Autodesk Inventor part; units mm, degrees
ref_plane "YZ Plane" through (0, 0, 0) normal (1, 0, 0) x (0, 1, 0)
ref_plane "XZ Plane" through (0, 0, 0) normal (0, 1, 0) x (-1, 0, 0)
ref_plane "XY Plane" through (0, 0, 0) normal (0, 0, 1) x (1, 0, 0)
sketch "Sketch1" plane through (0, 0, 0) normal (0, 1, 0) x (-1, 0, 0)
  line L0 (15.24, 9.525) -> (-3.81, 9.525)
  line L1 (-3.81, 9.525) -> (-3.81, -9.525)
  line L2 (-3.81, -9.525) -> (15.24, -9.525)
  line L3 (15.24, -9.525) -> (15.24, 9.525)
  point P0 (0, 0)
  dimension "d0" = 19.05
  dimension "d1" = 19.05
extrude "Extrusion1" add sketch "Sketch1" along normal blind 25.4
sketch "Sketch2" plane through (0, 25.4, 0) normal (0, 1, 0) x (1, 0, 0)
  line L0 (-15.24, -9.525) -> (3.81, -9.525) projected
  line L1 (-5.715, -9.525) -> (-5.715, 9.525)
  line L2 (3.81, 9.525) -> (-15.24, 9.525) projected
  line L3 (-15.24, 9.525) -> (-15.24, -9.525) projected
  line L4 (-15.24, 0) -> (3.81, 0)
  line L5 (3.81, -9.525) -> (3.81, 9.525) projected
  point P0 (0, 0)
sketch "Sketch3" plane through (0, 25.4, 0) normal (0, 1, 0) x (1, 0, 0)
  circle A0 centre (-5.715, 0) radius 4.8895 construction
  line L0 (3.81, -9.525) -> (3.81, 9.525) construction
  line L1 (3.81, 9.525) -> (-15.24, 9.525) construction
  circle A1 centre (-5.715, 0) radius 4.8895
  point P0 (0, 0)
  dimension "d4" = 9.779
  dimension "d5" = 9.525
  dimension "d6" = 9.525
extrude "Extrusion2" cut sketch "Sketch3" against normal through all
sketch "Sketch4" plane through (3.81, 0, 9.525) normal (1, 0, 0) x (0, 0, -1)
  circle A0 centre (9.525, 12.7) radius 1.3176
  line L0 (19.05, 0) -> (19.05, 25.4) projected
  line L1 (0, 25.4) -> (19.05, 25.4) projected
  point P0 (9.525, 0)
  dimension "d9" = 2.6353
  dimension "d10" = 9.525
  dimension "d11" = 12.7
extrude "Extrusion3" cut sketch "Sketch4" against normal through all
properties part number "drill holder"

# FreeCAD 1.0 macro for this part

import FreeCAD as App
import Part
import Sketcher
from FreeCAD import Vector
Q = App.Units.Quantity

doc = App.newDocument("Part")
body = doc.addObject("PartDesign::Body", "Body")

# Sketch on XZ plane
sketch1 = doc.addObject("Sketcher::SketchObject", "Sketch")
body.addObject(sketch1)
sketch1.AttachmentSupport = (doc.XZ_Plane, [""])
sketch1.MapMode = "FlatFace"
sketch1.addGeometry([
    Part.LineSegment(Vector(-15, -10, 0), Vector(-15, 10, 0)),
    Part.LineSegment(Vector(-15, 10, 0), Vector(4, 10, 0)),
    Part.LineSegment(Vector(4, 10, 0), Vector(4, -10, 0)),
    Part.LineSegment(Vector(4, -10, 0), Vector(-15, -10, 0)),
], False)
sketch1.addConstraint([
    Sketcher.Constraint("Coincident", 0, 2, 1, 1),
    Sketcher.Constraint("Coincident", 1, 2, 2, 1),
    Sketcher.Constraint("Coincident", 2, 2, 3, 1),
    Sketcher.Constraint("Coincident", 3, 2, 0, 1),
    Sketcher.Constraint("Vertical", 0),
    Sketcher.Constraint("Horizontal", 1),
    Sketcher.Constraint("Vertical", 2),
    Sketcher.Constraint("Horizontal", 3),
    Sketcher.Constraint("Equal", 3, 0),
    Sketcher.Constraint("DistanceX", 1, 1, 1, 2, Q("0.75 in")),
    Sketcher.Constraint("DistanceX", 0, 2, -1, 1, Q("0.6 in")),
    Sketcher.Constraint("DistanceY", -1, 1, 0, 2, Q("0.375 in")),
])
pad1 = doc.addObject("PartDesign::Pad", "Pad")
body.addObject(pad1)
pad1.Profile = sketch1
pad1.Length = Q("1 in")
pad1.Reversed = True

# Sketch on XZ plane
sketch2 = doc.addObject("Sketcher::SketchObject", "Sketch001")
body.addObject(sketch2)
sketch2.AttachmentSupport = (doc.XZ_Plane, [""])
sketch2.MapMode = "FlatFace"
sketch2.AttachmentOffset = App.Placement(Vector(0, 0, -1 * 25.4), App.Rotation())
sketch2.addGeometry(Part.Circle(Vector(-5.7, 0, 0), Vector(0, 0, 1), 4.9), False)
sketch2.addConstraint([
    Sketcher.Constraint("PointOnObject", 0, 3, -1),
    Sketcher.Constraint("Diameter", 0, Q("0.385 in")),
    Sketcher.Constraint("DistanceX", 0, 3, -1, 1, Q("0.225 in")),
])
pocket1 = doc.addObject("PartDesign::Pocket", "Pocket")
body.addObject(pocket1)
pocket1.Profile = sketch2
pocket1.Type = "ThroughAll"
pocket1.Reversed = True

# Sketch on YZ plane
sketch3 = doc.addObject("Sketcher::SketchObject", "Sketch002")
body.addObject(sketch3)
sketch3.AttachmentSupport = (doc.YZ_Plane, [""])
sketch3.MapMode = "FlatFace"
sketch3.AttachmentOffset = App.Placement(Vector(0, 0, 0.15 * 25.4), App.Rotation())
sketch3.addGeometry(Part.Circle(Vector(12.7, 0, 0), Vector(0, 0, 1), 1.3), False)
sketch3.addConstraint([
    Sketcher.Constraint("PointOnObject", 0, 3, -1),
    Sketcher.Constraint("DistanceX", -1, 1, 0, 3, Q("0.5 in")),
    Sketcher.Constraint("Diameter", 0, 2.6352),
])
pocket2 = doc.addObject("PartDesign::Pocket", "Pocket001")
body.addObject(pocket2)
pocket2.Profile = sketch3
pocket2.Type = "ThroughAll"

doc.recompute()
